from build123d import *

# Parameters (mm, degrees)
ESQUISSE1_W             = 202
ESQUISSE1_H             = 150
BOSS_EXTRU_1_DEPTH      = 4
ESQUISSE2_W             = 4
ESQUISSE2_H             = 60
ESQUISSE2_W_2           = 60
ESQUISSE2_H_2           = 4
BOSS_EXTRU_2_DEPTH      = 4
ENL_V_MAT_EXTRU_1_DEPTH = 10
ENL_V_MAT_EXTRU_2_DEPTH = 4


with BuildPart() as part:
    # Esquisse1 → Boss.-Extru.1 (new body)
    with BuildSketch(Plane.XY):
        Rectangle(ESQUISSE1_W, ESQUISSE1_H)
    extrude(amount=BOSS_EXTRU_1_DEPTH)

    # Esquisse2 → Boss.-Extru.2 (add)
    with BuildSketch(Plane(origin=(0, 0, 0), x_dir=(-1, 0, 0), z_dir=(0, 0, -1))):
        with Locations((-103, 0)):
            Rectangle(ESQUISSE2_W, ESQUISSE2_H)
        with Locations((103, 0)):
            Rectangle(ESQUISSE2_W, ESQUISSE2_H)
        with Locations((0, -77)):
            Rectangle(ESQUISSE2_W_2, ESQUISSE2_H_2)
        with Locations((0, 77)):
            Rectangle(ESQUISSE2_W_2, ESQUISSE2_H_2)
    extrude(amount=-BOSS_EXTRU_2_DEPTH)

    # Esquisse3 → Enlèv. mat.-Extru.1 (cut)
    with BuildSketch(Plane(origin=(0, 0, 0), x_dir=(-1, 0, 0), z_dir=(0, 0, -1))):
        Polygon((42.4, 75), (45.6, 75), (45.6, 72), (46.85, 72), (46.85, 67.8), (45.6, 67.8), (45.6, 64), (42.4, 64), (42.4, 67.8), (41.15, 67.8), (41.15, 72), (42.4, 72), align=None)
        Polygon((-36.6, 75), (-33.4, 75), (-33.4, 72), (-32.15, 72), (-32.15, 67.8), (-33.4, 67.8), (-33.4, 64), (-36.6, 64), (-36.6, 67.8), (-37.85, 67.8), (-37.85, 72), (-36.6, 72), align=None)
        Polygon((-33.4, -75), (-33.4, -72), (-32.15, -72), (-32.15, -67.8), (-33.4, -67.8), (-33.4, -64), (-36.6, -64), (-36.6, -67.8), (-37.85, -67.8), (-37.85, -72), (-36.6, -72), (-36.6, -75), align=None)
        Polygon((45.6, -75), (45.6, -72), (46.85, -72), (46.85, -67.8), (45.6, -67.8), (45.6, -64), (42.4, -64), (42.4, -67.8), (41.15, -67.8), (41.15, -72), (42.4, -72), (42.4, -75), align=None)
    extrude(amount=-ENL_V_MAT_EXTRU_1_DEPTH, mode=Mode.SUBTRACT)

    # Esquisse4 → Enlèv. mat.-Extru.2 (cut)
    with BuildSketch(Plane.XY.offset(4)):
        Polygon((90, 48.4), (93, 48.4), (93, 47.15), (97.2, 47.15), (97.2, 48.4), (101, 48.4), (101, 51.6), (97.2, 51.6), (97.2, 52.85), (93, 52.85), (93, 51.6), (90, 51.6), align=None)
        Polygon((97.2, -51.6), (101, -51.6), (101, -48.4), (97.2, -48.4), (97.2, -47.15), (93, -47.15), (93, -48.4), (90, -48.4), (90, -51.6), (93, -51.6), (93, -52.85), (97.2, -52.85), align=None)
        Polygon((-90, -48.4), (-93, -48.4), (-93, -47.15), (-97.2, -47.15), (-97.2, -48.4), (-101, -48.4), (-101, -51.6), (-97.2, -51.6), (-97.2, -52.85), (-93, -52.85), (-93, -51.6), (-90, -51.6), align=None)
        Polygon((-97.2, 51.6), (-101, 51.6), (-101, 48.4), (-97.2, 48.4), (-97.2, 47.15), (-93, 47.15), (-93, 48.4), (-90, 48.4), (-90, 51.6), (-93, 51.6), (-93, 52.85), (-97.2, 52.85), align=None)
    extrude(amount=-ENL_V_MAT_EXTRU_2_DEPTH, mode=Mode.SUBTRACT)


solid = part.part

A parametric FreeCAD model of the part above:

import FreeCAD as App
import Part
import Sketcher
Q = App.Units.Quantity

doc = App.newDocument("Part")
params = doc.addObject("Spreadsheet::Sheet", "Params")
for row, (alias, value) in enumerate([
    ("sketch1_width", "202 mm"),
    ("sketch1_height", "150 mm"),
    ("pad1_length", "4 mm"),
    ("sketch2_width", "4 mm"),
    ("sketch2_width2", "60 mm"),
    ("pad2_length", "4 mm"),
    ("sketch3_height", "3 mm"),
    ("sketch3_width", "3.2 mm"),
    ("sketch3_height2", "4.2 mm"),
    ("sketch3_height3", "3.8 mm"),
    ("sketch3_width2", "1.25 mm"),
    ("pocket1_length", "10 mm"),
    ("sketch4_width", "3 mm"),
    ("sketch4_width2", "4.2 mm"),
    ("sketch4_width3", "3.8 mm"),
    ("sketch4_height", "3.2 mm"),
    ("sketch4_height2", "1.25 mm"),
    ("pocket2_length", "4 mm"),
], start=1):
    params.set(f"A{row}", alias)
    params.set(f"B{row}", "=" + value)
    params.setAlias(f"B{row}", alias)

body = doc.addObject("PartDesign::Body", "Body")

sketch1 = body.newObject("Sketcher::SketchObject", "Sketch")
sketch1.AttachmentSupport = (doc.getObject("XY_Plane"), [""])
sketch1.MapMode = "FlatFace"
sketch1.addGeometry([
    Part.LineSegment(App.Vector(-101, 75, 0), App.Vector(-101, -75, 0)),
    Part.LineSegment(App.Vector(-101, -75, 0), App.Vector(101, -75, 0)),
    Part.LineSegment(App.Vector(101, -75, 0), App.Vector(101, 75, 0)),
    Part.LineSegment(App.Vector(101, 75, 0), App.Vector(-101, 75, 0)),
], False)
sketch1.addConstraint([
    Sketcher.Constraint("Coincident", 0, 2, 1, 1),
    Sketcher.Constraint("Coincident", 1, 2, 2, 1),
    Sketcher.Constraint("Coincident", 2, 2, 3, 1),
    Sketcher.Constraint("Coincident", 3, 2, 0, 1),
    Sketcher.Constraint("Vertical", 0),
    Sketcher.Constraint("Horizontal", 1),
    Sketcher.Constraint("Vertical", 2),
    Sketcher.Constraint("Horizontal", 3),
    Sketcher.Constraint("Symmetric", 0, 2, 2, 2, -1, 1),
    Sketcher.Constraint("DistanceX", 1, 1, 1, 2, Q("202 mm")),
    Sketcher.Constraint("DistanceY", 0, 2, 0, 1, Q("150 mm")),
])
sketch1.setExpression("Constraints[9]", "Params.sketch1_width")
sketch1.setExpression("Constraints[10]", "Params.sketch1_height")
pad1 = body.newObject("PartDesign::Pad", "Pad")
pad1.Profile = sketch1
pad1.setExpression("Length", "Params.pad1_length")

sketch2 = body.newObject("Sketcher::SketchObject", "Sketch001")
sketch2.AttachmentSupport = (doc.getObject("XY_Plane"), [""])
sketch2.MapMode = "FlatFace"
sketch2.addGeometry([
    Part.LineSegment(App.Vector(105, 30, 0), App.Vector(105, -30, 0)),
    Part.LineSegment(App.Vector(105, -30, 0), App.Vector(101, -30, 0)),
    Part.LineSegment(App.Vector(101, -30, 0), App.Vector(101, 30, 0)),
    Part.LineSegment(App.Vector(101, 30, 0), App.Vector(105, 30, 0)),
    Part.LineSegment(App.Vector(-101, 30, 0), App.Vector(-101, -30, 0)),
    Part.LineSegment(App.Vector(-101, -30, 0), App.Vector(-105, -30, 0)),
    Part.LineSegment(App.Vector(-105, -30, 0), App.Vector(-105, 30, 0)),
    Part.LineSegment(App.Vector(-105, 30, 0), App.Vector(-101, 30, 0)),
    Part.LineSegment(App.Vector(30, -75, 0), App.Vector(30, -79, 0)),
    Part.LineSegment(App.Vector(30, -79, 0), App.Vector(-30, -79, 0)),
    Part.LineSegment(App.Vector(-30, -79, 0), App.Vector(-30, -75, 0)),
    Part.LineSegment(App.Vector(-30, -75, 0), App.Vector(30, -75, 0)),
    Part.LineSegment(App.Vector(30, 79, 0), App.Vector(30, 75, 0)),
    Part.LineSegment(App.Vector(30, 75, 0), App.Vector(-30, 75, 0)),
    Part.LineSegment(App.Vector(-30, 75, 0), App.Vector(-30, 79, 0)),
    Part.LineSegment(App.Vector(-30, 79, 0), App.Vector(30, 79, 0)),
], False)
sketch2.addConstraint([
    Sketcher.Constraint("Coincident", 0, 2, 1, 1),
    Sketcher.Constraint("Coincident", 1, 2, 2, 1),
    Sketcher.Constraint("Coincident", 2, 2, 3, 1),
    Sketcher.Constraint("Coincident", 3, 2, 0, 1),
    Sketcher.Constraint("Coincident", 4, 2, 5, 1),
    Sketcher.Constraint("Coincident", 5, 2, 6, 1),
    Sketcher.Constraint("Coincident", 6, 2, 7, 1),
    Sketcher.Constraint("Coincident", 7, 2, 4, 1),
    Sketcher.Constraint("Coincident", 8, 2, 9, 1),
    Sketcher.Constraint("Coincident", 9, 2, 10, 1),
    Sketcher.Constraint("Coincident", 10, 2, 11, 1),
    Sketcher.Constraint("Coincident", 11, 2, 8, 1),
    Sketcher.Constraint("Coincident", 12, 2, 13, 1),
    Sketcher.Constraint("Coincident", 13, 2, 14, 1),
    Sketcher.Constraint("Coincident", 14, 2, 15, 1),
    Sketcher.Constraint("Coincident", 15, 2, 12, 1),
    Sketcher.Constraint("Vertical", 0),
    Sketcher.Constraint("Horizontal", 1),
    Sketcher.Constraint("Vertical", 2),
    Sketcher.Constraint("Horizontal", 3),
    Sketcher.Constraint("Vertical", 4),
    Sketcher.Constraint("Horizontal", 5),
    Sketcher.Constraint("Vertical", 6),
    Sketcher.Constraint("Horizontal", 7),
    Sketcher.Constraint("Vertical", 8),
    Sketcher.Constraint("Horizontal", 9),
    Sketcher.Constraint("Vertical", 10),
    Sketcher.Constraint("Horizontal", 11),
    Sketcher.Constraint("Vertical", 12),
    Sketcher.Constraint("Horizontal", 13),
    Sketcher.Constraint("Vertical", 14),
    Sketcher.Constraint("Horizontal", 15),
    Sketcher.Constraint("Symmetric", 2, 2, 4, 2, -1, 1),
    Sketcher.Constraint("Symmetric", 0, 2, 6, 2, -1, 1),
    Sketcher.Constraint("Symmetric", 10, 2, 12, 2, -1, 1),
    Sketcher.Constraint("Symmetric", 8, 2, 14, 2, -1, 1),
    Sketcher.Constraint("Horizontal", 1, 2, 4, 2),
    Sketcher.Constraint("Vertical", 11, 2, 12, 2),
    Sketcher.Constraint("Equal", 15, 0),
    Sketcher.Constraint("Equal", 7, 8),
    Sketcher.Constraint("DistanceX", 1, 2, 1, 1, Q("4 mm")),
    Sketcher.Constraint("DistanceX", 9, 2, 9, 1, Q("60 mm")),
    Sketcher.Constraint("DistanceX", -1, 1, 0, 2, Q("105 mm")),
    Sketcher.Constraint("DistanceY", 8, 2, -1, 1, Q("79 mm")),
])
sketch2.setExpression("Constraints[40]", "Params.sketch2_width")
sketch2.setExpression("Constraints[41]", "Params.sketch2_width2")
pad2 = body.newObject("PartDesign::Pad", "Pad001")
pad2.Profile = sketch2
pad2.setExpression("Length", "Params.pad2_length")

sketch3 = body.newObject("Sketcher::SketchObject", "Sketch002")
sketch3.AttachmentSupport = (doc.getObject("XY_Plane"), [""])
sketch3.MapMode = "FlatFace"
sketch3.addGeometry([
    Part.LineSegment(App.Vector(-45.6, 75, 0), App.Vector(-42.4, 75, 0)),
    Part.LineSegment(App.Vector(-42.4, 75, 0), App.Vector(-42.4, 72, 0)),
    Part.LineSegment(App.Vector(-42.4, 72, 0), App.Vector(-41.15, 72, 0)),
    Part.LineSegment(App.Vector(-41.15, 72, 0), App.Vector(-41.15, 67.8, 0)),
    Part.LineSegment(App.Vector(-41.15, 67.8, 0), App.Vector(-42.4, 67.8, 0)),
    Part.LineSegment(App.Vector(-42.4, 67.8, 0), App.Vector(-42.4, 64, 0)),
    Part.LineSegment(App.Vector(-42.4, 64, 0), App.Vector(-45.6, 64, 0)),
    Part.LineSegment(App.Vector(-45.6, 64, 0), App.Vector(-45.6, 67.8, 0)),
    Part.LineSegment(App.Vector(-45.6, 67.8, 0), App.Vector(-46.85, 67.8, 0)),
    Part.LineSegment(App.Vector(-46.85, 67.8, 0), App.Vector(-46.85, 72, 0)),
    Part.LineSegment(App.Vector(-46.85, 72, 0), App.Vector(-45.6, 72, 0)),
    Part.LineSegment(App.Vector(-45.6, 72, 0), App.Vector(-45.6, 75, 0)),
    Part.LineSegment(App.Vector(33.4, 75, 0), App.Vector(36.6, 75, 0)),
    Part.LineSegment(App.Vector(36.6, 75, 0), App.Vector(36.6, 72, 0)),
    Part.LineSegment(App.Vector(36.6, 72, 0), App.Vector(37.85, 72, 0)),
    Part.LineSegment(App.Vector(37.85, 72, 0), App.Vector(37.85, 67.8, 0)),
    Part.LineSegment(App.Vector(37.85, 67.8, 0), App.Vector(36.6, 67.8, 0)),
    Part.LineSegment(App.Vector(36.6, 67.8, 0), App.Vector(36.6, 64, 0)),
    Part.LineSegment(App.Vector(36.6, 64, 0), App.Vector(33.4, 64, 0)),
    Part.LineSegment(App.Vector(33.4, 64, 0), App.Vector(33.4, 67.8, 0)),
    Part.LineSegment(App.Vector(33.4, 67.8, 0), App.Vector(32.15, 67.8, 0)),
    Part.LineSegment(App.Vector(32.15, 67.8, 0), App.Vector(32.15, 72, 0)),
    Part.LineSegment(App.Vector(32.15, 72, 0), App.Vector(33.4, 72, 0)),
    Part.LineSegment(App.Vector(33.4, 72, 0), App.Vector(33.4, 75, 0)),
    Part.LineSegment(App.Vector(33.4, -75, 0), App.Vector(33.4, -72, 0)),
    Part.LineSegment(App.Vector(33.4, -72, 0), App.Vector(32.15, -72, 0)),
    Part.LineSegment(App.Vector(32.15, -72, 0), App.Vector(32.15, -67.8, 0)),
    Part.LineSegment(App.Vector(32.15, -67.8, 0), App.Vector(33.4, -67.8, 0)),
    Part.LineSegment(App.Vector(33.4, -67.8, 0), App.Vector(33.4, -64, 0)),
    Part.LineSegment(App.Vector(33.4, -64, 0), App.Vector(36.6, -64, 0)),
    Part.LineSegment(App.Vector(36.6, -64, 0), App.Vector(36.6, -67.8, 0)),
    Part.LineSegment(App.Vector(36.6, -67.8, 0), App.Vector(37.85, -67.8, 0)),
    Part.LineSegment(App.Vector(37.85, -67.8, 0), App.Vector(37.85, -72, 0)),
    Part.LineSegment(App.Vector(37.85, -72, 0), App.Vector(36.6, -72, 0)),
    Part.LineSegment(App.Vector(36.6, -72, 0), App.Vector(36.6, -75, 0)),
    Part.LineSegment(App.Vector(36.6, -75, 0), App.Vector(33.4, -75, 0)),
    Part.LineSegment(App.Vector(-45.6, -75, 0), App.Vector(-45.6, -72, 0)),
    Part.LineSegment(App.Vector(-45.6, -72, 0), App.Vector(-46.85, -72, 0)),
    Part.LineSegment(App.Vector(-46.85, -72, 0), App.Vector(-46.85, -67.8, 0)),
    Part.LineSegment(App.Vector(-46.85, -67.8, 0), App.Vector(-45.6, -67.8, 0)),
    Part.LineSegment(App.Vector(-45.6, -67.8, 0), App.Vector(-45.6, -64, 0)),
    Part.LineSegment(App.Vector(-45.6, -64, 0), App.Vector(-42.4, -64, 0)),
    Part.LineSegment(App.Vector(-42.4, -64, 0), App.Vector(-42.4, -67.8, 0)),
    Part.LineSegment(App.Vector(-42.4, -67.8, 0), App.Vector(-41.15, -67.8, 0)),
    Part.LineSegment(App.Vector(-41.15, -67.8, 0), App.Vector(-41.15, -72, 0)),
    Part.LineSegment(App.Vector(-41.15, -72, 0), App.Vector(-42.4, -72, 0)),
    Part.LineSegment(App.Vector(-42.4, -72, 0), App.Vector(-42.4, -75, 0)),
    Part.LineSegment(App.Vector(-42.4, -75, 0), App.Vector(-45.6, -75, 0)),
], False)
sketch3.addConstraint([
    Sketcher.Constraint("Coincident", 0, 2, 1, 1),
    Sketcher.Constraint("Coincident", 1, 2, 2, 1),
    Sketcher.Constraint("Coincident", 2, 2, 3, 1),
    Sketcher.Constraint("Coincident", 3, 2, 4, 1),
    Sketcher.Constraint("Coincident", 4, 2, 5, 1),
    Sketcher.Constraint("Coincident", 5, 2, 6, 1),
    Sketcher.Constraint("Coincident", 6, 2, 7, 1),
    Sketcher.Constraint("Coincident", 7, 2, 8, 1),
    Sketcher.Constraint("Coincident", 8, 2, 9, 1),
    Sketcher.Constraint("Coincident", 9, 2, 10, 1),
    Sketcher.Constraint("Coincident", 10, 2, 11, 1),
    Sketcher.Constraint("Coincident", 11, 2, 0, 1),
    Sketcher.Constraint("Coincident", 12, 2, 13, 1),
    Sketcher.Constraint("Coincident", 13, 2, 14, 1),
    Sketcher.Constraint("Coincident", 14, 2, 15, 1),
    Sketcher.Constraint("Coincident", 15, 2, 16, 1),
    Sketcher.Constraint("Coincident", 16, 2, 17, 1),
    Sketcher.Constraint("Coincident", 17, 2, 18, 1),
    Sketcher.Constraint("Coincident", 18, 2, 19, 1),
    Sketcher.Constraint("Coincident", 19, 2, 20, 1),
    Sketcher.Constraint("Coincident", 20, 2, 21, 1),
    Sketcher.Constraint("Coincident", 21, 2, 22, 1),
    Sketcher.Constraint("Coincident", 22, 2, 23, 1),
    Sketcher.Constraint("Coincident", 23, 2, 12, 1),
    Sketcher.Constraint("Coincident", 24, 2, 25, 1),
    Sketcher.Constraint("Coincident", 25, 2, 26, 1),
    Sketcher.Constraint("Coincident", 26, 2, 27, 1),
    Sketcher.Constraint("Coincident", 27, 2, 28, 1),
    Sketcher.Constraint("Coincident", 28, 2, 29, 1),
    Sketcher.Constraint("Coincident", 29, 2, 30, 1),
    Sketcher.Constraint("Coincident", 30, 2, 31, 1),
    Sketcher.Constraint("Coincident", 31, 2, 32, 1),
    Sketcher.Constraint("Coincident", 32, 2, 33, 1),
    Sketcher.Constraint("Coincident", 33, 2, 34, 1),
    Sketcher.Constraint("Coincident", 34, 2, 35, 1),
    Sketcher.Constraint("Coincident", 35, 2, 24, 1),
    Sketcher.Constraint("Coincident", 36, 2, 37, 1),
    Sketcher.Constraint("Coincident", 37, 2, 38, 1),
    Sketcher.Constraint("Coincident", 38, 2, 39, 1),
    Sketcher.Constraint("Coincident", 39, 2, 40, 1),
    Sketcher.Constraint("Coincident", 40, 2, 41, 1),
    Sketcher.Constraint("Coincident", 41, 2, 42, 1),
    Sketcher.Constraint("Coincident", 42, 2, 43, 1),
    Sketcher.Constraint("Coincident", 43, 2, 44, 1),
    Sketcher.Constraint("Coincident", 44, 2, 45, 1),
    Sketcher.Constraint("Coincident", 45, 2, 46, 1),
    Sketcher.Constraint("Coincident", 46, 2, 47, 1),
    Sketcher.Constraint("Coincident", 47, 2, 36, 1),
    Sketcher.Constraint("Horizontal", 0),
    Sketcher.Constraint("Vertical", 1),
    Sketcher.Constraint("Horizontal", 2),
    Sketcher.Constraint("Vertical", 3),
    Sketcher.Constraint("Horizontal", 4),
    Sketcher.Constraint("Vertical", 5),
    Sketcher.Constraint("Horizontal", 6),
    Sketcher.Constraint("Vertical", 7),
    Sketcher.Constraint("Horizontal", 8),
    Sketcher.Constraint("Vertical", 9),
    Sketcher.Constraint("Horizontal", 10),
    Sketcher.Constraint("Vertical", 11),
    Sketcher.Constraint("Horizontal", 12),
    Sketcher.Constraint("Vertical", 13),
    Sketcher.Constraint("Horizontal", 14),
    Sketcher.Constraint("Vertical", 15),
    Sketcher.Constraint("Horizontal", 16),
    Sketcher.Constraint("Vertical", 17),
    Sketcher.Constraint("Horizontal", 18),
    Sketcher.Constraint("Vertical", 19),
    Sketcher.Constraint("Horizontal", 20),
    Sketcher.Constraint("Vertical", 21),
    Sketcher.Constraint("Horizontal", 22),
    Sketcher.Constraint("Vertical", 23),
    Sketcher.Constraint("Vertical", 24),
    Sketcher.Constraint("Horizontal", 25),
    Sketcher.Constraint("Vertical", 26),
    Sketcher.Constraint("Horizontal", 27),
    Sketcher.Constraint("Vertical", 28),
    Sketcher.Constraint("Horizontal", 29),
    Sketcher.Constraint("Vertical", 30),
    Sketcher.Constraint("Horizontal", 31),
    Sketcher.Constraint("Vertical", 32),
    Sketcher.Constraint("Horizontal", 33),
    Sketcher.Constraint("Vertical", 34),
    Sketcher.Constraint("Horizontal", 35),
    Sketcher.Constraint("Vertical", 36),
    Sketcher.Constraint("Horizontal", 37),
    Sketcher.Constraint("Vertical", 38),
    Sketcher.Constraint("Horizontal", 39),
    Sketcher.Constraint("Vertical", 40),
    Sketcher.Constraint("Horizontal", 41),
    Sketcher.Constraint("Vertical", 42),
    Sketcher.Constraint("Horizontal", 43),
    Sketcher.Constraint("Vertical", 44),
    Sketcher.Constraint("Horizontal", 45),
    Sketcher.Constraint("Vertical", 46),
    Sketcher.Constraint("Horizontal", 47),
    Sketcher.Constraint("Symmetric", 22, 2, 24, 2, -1),
    Sketcher.Constraint("Symmetric", 20, 2, 26, 2, -1),
    Sketcher.Constraint("Symmetric", 18, 2, 28, 2, -1),
    Sketcher.Constraint("Symmetric", 16, 2, 30, 2, -1),
    Sketcher.Constraint("Symmetric", 14, 2, 32, 2, -1),
    Sketcher.Constraint("Symmetric", 12, 2, 34, 2, -1),
    Sketcher.Constraint("Symmetric", 10, 2, 36, 2, -1),
    Sketcher.Constraint("Symmetric", 8, 2, 38, 2, -1),
    Sketcher.Constraint("Symmetric", 6, 2, 40, 2, -1),
    Sketcher.Constraint("Symmetric", 4, 2, 42, 2, -1),
    Sketcher.Constraint("Symmetric", 2, 2, 44, 2, -1),
    Sketcher.Constraint("Symmetric", 0, 2, 46, 2, -1),
    Sketcher.Constraint("Horizontal", 4, 2, 7, 2),
    Sketcher.Constraint("Horizontal", 2, 2, 9, 2),
    Sketcher.Constraint("Horizontal", 11, 2, 12, 2),
    Sketcher.Constraint("Horizontal", 10, 2, 13, 2),
    Sketcher.Constraint("Horizontal", 8, 2, 15, 2),
    Sketcher.Constraint("Horizontal", 6, 2, 17, 2),
    Sketcher.Constraint("Horizontal", 16, 2, 19, 2),
    Sketcher.Constraint("Horizontal", 14, 2, 21, 2),
    Sketcher.Constraint("Vertical", 1, 2, 4, 2),
    Sketcher.Constraint("Vertical", 7, 2, 10, 2),
    Sketcher.Constraint("Vertical", 13, 2, 16, 2),
    Sketcher.Constraint("Vertical", 19, 2, 22, 2),
    Sketcher.Constraint("Equal", 4, 8),
    Sketcher.Constraint("Equal", 6, 12),
    Sketcher.Constraint("Equal", 10, 14),
    Sketcher.Constraint("Equal", 16, 20),
    Sketcher.Constraint("DistanceY", 1, 2, 1, 1, Q("3 mm")),
    Sketcher.Constraint("DistanceX", 0, 1, 0, 2, Q("3.2 mm")),
    Sketcher.Constraint("DistanceY", 3, 2, 3, 1, Q("4.2 mm")),
    Sketcher.Constraint("DistanceY", 5, 2, 5, 1, Q("3.8 mm")),
    Sketcher.Constraint("DistanceY", -1, 1, 0, 2, Q("75 mm")),
    Sketcher.Constraint("DistanceX", 0, 2, 12, 2, Q("79 mm")),
    Sketcher.Constraint("DistanceX", 2, 1, 2, 2, Q("1.25 mm")),
    Sketcher.Constraint("DistanceX", 0, 2, -1, 1, Q("42.4 mm")),
])
sketch3.setExpression("Constraints[124]", "Params.sketch3_height")
sketch3.setExpression("Constraints[125]", "Params.sketch3_width")
sketch3.setExpression("Constraints[126]", "Params.sketch3_height2")
sketch3.setExpression("Constraints[127]", "Params.sketch3_height3")
sketch3.setExpression("Constraints[130]", "Params.sketch3_width2")
pocket1 = body.newObject("PartDesign::Pocket", "Pocket")
pocket1.Profile = sketch3
pocket1.setExpression("Length", "Params.pocket1_length")
pocket1.Reversed = True

sketch4 = body.newObject("Sketcher::SketchObject", "Sketch003")
sketch4.AttachmentSupport = (doc.getObject("XY_Plane"), [""])
sketch4.MapMode = "FlatFace"
sketch4.AttachmentOffset = App.Placement(App.Vector(0, 0, 4), App.Rotation())
sketch4.addGeometry([
    Part.LineSegment(App.Vector(90, 48.4, 0), App.Vector(93, 48.4, 0)),
    Part.LineSegment(App.Vector(93, 48.4, 0), App.Vector(93, 47.15, 0)),
    Part.LineSegment(App.Vector(93, 47.15, 0), App.Vector(97.2, 47.15, 0)),
    Part.LineSegment(App.Vector(97.2, 47.15, 0), App.Vector(97.2, 48.4, 0)),
    Part.LineSegment(App.Vector(97.2, 48.4, 0), App.Vector(101, 48.4, 0)),
    Part.LineSegment(App.Vector(101, 48.4, 0), App.Vector(101, 51.6, 0)),
    Part.LineSegment(App.Vector(101, 51.6, 0), App.Vector(97.2, 51.6, 0)),
    Part.LineSegment(App.Vector(97.2, 51.6, 0), App.Vector(97.2, 52.85, 0)),
    Part.LineSegment(App.Vector(97.2, 52.85, 0), App.Vector(93, 52.85, 0)),
    Part.LineSegment(App.Vector(93, 52.85, 0), App.Vector(93, 51.6, 0)),
    Part.LineSegment(App.Vector(93, 51.6, 0), App.Vector(90, 51.6, 0)),
    Part.LineSegment(App.Vector(90, 51.6, 0), App.Vector(90, 48.4, 0)),
    Part.LineSegment(App.Vector(97.2, -51.6, 0), App.Vector(101, -51.6, 0)),
    Part.LineSegment(App.Vector(101, -51.6, 0), App.Vector(101, -48.4, 0)),
    Part.LineSegment(App.Vector(101, -48.4, 0), App.Vector(97.2, -48.4, 0)),
    Part.LineSegment(App.Vector(97.2, -48.4, 0), App.Vector(97.2, -47.15, 0)),
    Part.LineSegment(App.Vector(97.2, -47.15, 0), App.Vector(93, -47.15, 0)),
    Part.LineSegment(App.Vector(93, -47.15, 0), App.Vector(93, -48.4, 0)),
    Part.LineSegment(App.Vector(93, -48.4, 0), App.Vector(90, -48.4, 0)),
    Part.LineSegment(App.Vector(90, -48.4, 0), App.Vector(90, -51.6, 0)),
    Part.LineSegment(App.Vector(90, -51.6, 0), App.Vector(93, -51.6, 0)),
    Part.LineSegment(App.Vector(93, -51.6, 0), App.Vector(93, -52.85, 0)),
    Part.LineSegment(App.Vector(93, -52.85, 0), App.Vector(97.2, -52.85, 0)),
    Part.LineSegment(App.Vector(97.2, -52.85, 0), App.Vector(97.2, -51.6, 0)),
    Part.LineSegment(App.Vector(-90, -48.4, 0), App.Vector(-93, -48.4, 0)),
    Part.LineSegment(App.Vector(-93, -48.4, 0), App.Vector(-93, -47.15, 0)),
    Part.LineSegment(App.Vector(-93, -47.15, 0), App.Vector(-97.2, -47.15, 0)),
    Part.LineSegment(App.Vector(-97.2, -47.15, 0), App.Vector(-97.2, -48.4, 0)),
    Part.LineSegment(App.Vector(-97.2, -48.4, 0), App.Vector(-101, -48.4, 0)),
    Part.LineSegment(App.Vector(-101, -48.4, 0), App.Vector(-101, -51.6, 0)),
    Part.LineSegment(App.Vector(-101, -51.6, 0), App.Vector(-97.2, -51.6, 0)),
    Part.LineSegment(App.Vector(-97.2, -51.6, 0), App.Vector(-97.2, -52.85, 0)),
    Part.LineSegment(App.Vector(-97.2, -52.85, 0), App.Vector(-93, -52.85, 0)),
    Part.LineSegment(App.Vector(-93, -52.85, 0), App.Vector(-93, -51.6, 0)),
    Part.LineSegment(App.Vector(-93, -51.6, 0), App.Vector(-90, -51.6, 0)),
    Part.LineSegment(App.Vector(-90, -51.6, 0), App.Vector(-90, -48.4, 0)),
    Part.LineSegment(App.Vector(-97.2, 51.6, 0), App.Vector(-101, 51.6, 0)),
    Part.LineSegment(App.Vector(-101, 51.6, 0), App.Vector(-101, 48.4, 0)),
    Part.LineSegment(App.Vector(-101, 48.4, 0), App.Vector(-97.2, 48.4, 0)),
    Part.LineSegment(App.Vector(-97.2, 48.4, 0), App.Vector(-97.2, 47.15, 0)),
    Part.LineSegment(App.Vector(-97.2, 47.15, 0), App.Vector(-93, 47.15, 0)),
    Part.LineSegment(App.Vector(-93, 47.15, 0), App.Vector(-93, 48.4, 0)),
    Part.LineSegment(App.Vector(-93, 48.4, 0), App.Vector(-90, 48.4, 0)),
    Part.LineSegment(App.Vector(-90, 48.4, 0), App.Vector(-90, 51.6, 0)),
    Part.LineSegment(App.Vector(-90, 51.6, 0), App.Vector(-93, 51.6, 0)),
    Part.LineSegment(App.Vector(-93, 51.6, 0), App.Vector(-93, 52.85, 0)),
    Part.LineSegment(App.Vector(-93, 52.85, 0), App.Vector(-97.2, 52.85, 0)),
    Part.LineSegment(App.Vector(-97.2, 52.85, 0), App.Vector(-97.2, 51.6, 0)),
], False)
sketch4.addConstraint([
    Sketcher.Constraint("Coincident", 0, 2, 1, 1),
    Sketcher.Constraint("Coincident", 1, 2, 2, 1),
    Sketcher.Constraint("Coincident", 2, 2, 3, 1),
    Sketcher.Constraint("Coincident", 3, 2, 4, 1),
    Sketcher.Constraint("Coincident", 4, 2, 5, 1),
    Sketcher.Constraint("Coincident", 5, 2, 6, 1),
    Sketcher.Constraint("Coincident", 6, 2, 7, 1),
    Sketcher.Constraint("Coincident", 7, 2, 8, 1),
    Sketcher.Constraint("Coincident", 8, 2, 9, 1),
    Sketcher.Constraint("Coincident", 9, 2, 10, 1),
    Sketcher.Constraint("Coincident", 10, 2, 11, 1),
    Sketcher.Constraint("Coincident", 11, 2, 0, 1),
    Sketcher.Constraint("Coincident", 12, 2, 13, 1),
    Sketcher.Constraint("Coincident", 13, 2, 14, 1),
    Sketcher.Constraint("Coincident", 14, 2, 15, 1),
    Sketcher.Constraint("Coincident", 15, 2, 16, 1),
    Sketcher.Constraint("Coincident", 16, 2, 17, 1),
    Sketcher.Constraint("Coincident", 17, 2, 18, 1),
    Sketcher.Constraint("Coincident", 18, 2, 19, 1),
    Sketcher.Constraint("Coincident", 19, 2, 20, 1),
    Sketcher.Constraint("Coincident", 20, 2, 21, 1),
    Sketcher.Constraint("Coincident", 21, 2, 22, 1),
    Sketcher.Constraint("Coincident", 22, 2, 23, 1),
    Sketcher.Constraint("Coincident", 23, 2, 12, 1),
    Sketcher.Constraint("Coincident", 24, 2, 25, 1),
    Sketcher.Constraint("Coincident", 25, 2, 26, 1),
    Sketcher.Constraint("Coincident", 26, 2, 27, 1),
    Sketcher.Constraint("Coincident", 27, 2, 28, 1),
    Sketcher.Constraint("Coincident", 28, 2, 29, 1),
    Sketcher.Constraint("Coincident", 29, 2, 30, 1),
    Sketcher.Constraint("Coincident", 30, 2, 31, 1),
    Sketcher.Constraint("Coincident", 31, 2, 32, 1),
    Sketcher.Constraint("Coincident", 32, 2, 33, 1),
    Sketcher.Constraint("Coincident", 33, 2, 34, 1),
    Sketcher.Constraint("Coincident", 34, 2, 35, 1),
    Sketcher.Constraint("Coincident", 35, 2, 24, 1),
    Sketcher.Constraint("Coincident", 36, 2, 37, 1),
    Sketcher.Constraint("Coincident", 37, 2, 38, 1),
    Sketcher.Constraint("Coincident", 38, 2, 39, 1),
    Sketcher.Constraint("Coincident", 39, 2, 40, 1),
    Sketcher.Constraint("Coincident", 40, 2, 41, 1),
    Sketcher.Constraint("Coincident", 41, 2, 42, 1),
    Sketcher.Constraint("Coincident", 42, 2, 43, 1),
    Sketcher.Constraint("Coincident", 43, 2, 44, 1),
    Sketcher.Constraint("Coincident", 44, 2, 45, 1),
    Sketcher.Constraint("Coincident", 45, 2, 46, 1),
    Sketcher.Constraint("Coincident", 46, 2, 47, 1),
    Sketcher.Constraint("Coincident", 47, 2, 36, 1),
    Sketcher.Constraint("Horizontal", 0),
    Sketcher.Constraint("Vertical", 1),
    Sketcher.Constraint("Horizontal", 2),
    Sketcher.Constraint("Vertical", 3),
    Sketcher.Constraint("Horizontal", 4),
    Sketcher.Constraint("Vertical", 5),
    Sketcher.Constraint("Horizontal", 6),
    Sketcher.Constraint("Vertical", 7),
    Sketcher.Constraint("Horizontal", 8),
    Sketcher.Constraint("Vertical", 9),
    Sketcher.Constraint("Horizontal", 10),
    Sketcher.Constraint("Vertical", 11),
    Sketcher.Constraint("Horizontal", 12),
    Sketcher.Constraint("Vertical", 13),
    Sketcher.Constraint("Horizontal", 14),
    Sketcher.Constraint("Vertical", 15),
    Sketcher.Constraint("Horizontal", 16),
    Sketcher.Constraint("Vertical", 17),
    Sketcher.Constraint("Horizontal", 18),
    Sketcher.Constraint("Vertical", 19),
    Sketcher.Constraint("Horizontal", 20),
    Sketcher.Constraint("Vertical", 21),
    Sketcher.Constraint("Horizontal", 22),
    Sketcher.Constraint("Vertical", 23),
    Sketcher.Constraint("Horizontal", 24),
    Sketcher.Constraint("Vertical", 25),
    Sketcher.Constraint("Horizontal", 26),
    Sketcher.Constraint("Vertical", 27),
    Sketcher.Constraint("Horizontal", 28),
    Sketcher.Constraint("Vertical", 29),
    Sketcher.Constraint("Horizontal", 30),
    Sketcher.Constraint("Vertical", 31),
    Sketcher.Constraint("Horizontal", 32),
    Sketcher.Constraint("Vertical", 33),
    Sketcher.Constraint("Horizontal", 34),
    Sketcher.Constraint("Vertical", 35),
    Sketcher.Constraint("Horizontal", 36),
    Sketcher.Constraint("Vertical", 37),
    Sketcher.Constraint("Horizontal", 38),
    Sketcher.Constraint("Vertical", 39),
    Sketcher.Constraint("Horizontal", 40),
    Sketcher.Constraint("Vertical", 41),
    Sketcher.Constraint("Horizontal", 42),
    Sketcher.Constraint("Vertical", 43),
    Sketcher.Constraint("Horizontal", 44),
    Sketcher.Constraint("Vertical", 45),
    Sketcher.Constraint("Horizontal", 46),
    Sketcher.Constraint("Vertical", 47),
    Sketcher.Constraint("Symmetric", 0, 2, 24, 2, -1, 1),
    Sketcher.Constraint("Symmetric", 2, 2, 26, 2, -1, 1),
    Sketcher.Constraint("Symmetric", 4, 2, 28, 2, -1, 1),
    Sketcher.Constraint("Symmetric", 6, 2, 30, 2, -1, 1),
    Sketcher.Constraint("Symmetric", 8, 2, 32, 2, -1, 1),
    Sketcher.Constraint("Symmetric", 10, 2, 34, 2, -1, 1),
    Sketcher.Constraint("Symmetric", 12, 2, 36, 2, -1, 1),
    Sketcher.Constraint("Symmetric", 14, 2, 38, 2, -1, 1),
    Sketcher.Constraint("Symmetric", 16, 2, 40, 2, -1, 1),
    Sketcher.Constraint("Symmetric", 18, 2, 42, 2, -1, 1),
    Sketcher.Constraint("Symmetric", 20, 2, 44, 2, -1, 1),
    Sketcher.Constraint("Symmetric", 22, 2, 46, 2, -1, 1),
    Sketcher.Constraint("Symmetric", 17, 2, 24, 2, -2),
    Sketcher.Constraint("Symmetric", 15, 2, 26, 2, -2),
    Sketcher.Constraint("Symmetric", 13, 2, 28, 2, -2),
    Sketcher.Constraint("Symmetric", 23, 2, 30, 2, -2),
    Sketcher.Constraint("Symmetric", 21, 2, 32, 2, -2),
    Sketcher.Constraint("Symmetric", 19, 2, 34, 2, -2),
    Sketcher.Constraint("Horizontal", 0, 2, 3, 2),
    Sketcher.Constraint("Horizontal", 6, 2, 9, 2),
    Sketcher.Constraint("Vertical", 3, 2, 6, 2),
    Sketcher.Constraint("Vertical", 1, 2, 8, 2),
    Sketcher.Constraint("Equal", 3, 7),
    Sketcher.Constraint("DistanceX", 0, 1, 0, 2, Q("3 mm")),
    Sketcher.Constraint("DistanceX", 2, 1, 2, 2, Q("4.2 mm")),
    Sketcher.Constraint("DistanceX", 4, 1, 4, 2, Q("3.8 mm")),
    Sketcher.Constraint("DistanceY", 5, 1, 5, 2, Q("3.2 mm")),
    Sketcher.Constraint("DistanceX", -1, 1, 0, 2, Q("93 mm")),
    Sketcher.Constraint("DistanceY", 12, 2, 4, 2, Q("100 mm")),
    Sketcher.Constraint("DistanceY", 1, 2, 1, 1, Q("1.25 mm")),
])
sketch4.setExpression("Constraints[119]", "Params.sketch4_width")
sketch4.setExpression("Constraints[120]", "Params.sketch4_width2")
sketch4.setExpression("Constraints[121]", "Params.sketch4_width3")
sketch4.setExpression("Constraints[122]", "Params.sketch4_height")
sketch4.setExpression("Constraints[125]", "Params.sketch4_height2")
pocket2 = body.newObject("PartDesign::Pocket", "Pocket001")
pocket2.Profile = sketch4
pocket2.setExpression("Length", "Params.pocket2_length")

doc.recompute()
